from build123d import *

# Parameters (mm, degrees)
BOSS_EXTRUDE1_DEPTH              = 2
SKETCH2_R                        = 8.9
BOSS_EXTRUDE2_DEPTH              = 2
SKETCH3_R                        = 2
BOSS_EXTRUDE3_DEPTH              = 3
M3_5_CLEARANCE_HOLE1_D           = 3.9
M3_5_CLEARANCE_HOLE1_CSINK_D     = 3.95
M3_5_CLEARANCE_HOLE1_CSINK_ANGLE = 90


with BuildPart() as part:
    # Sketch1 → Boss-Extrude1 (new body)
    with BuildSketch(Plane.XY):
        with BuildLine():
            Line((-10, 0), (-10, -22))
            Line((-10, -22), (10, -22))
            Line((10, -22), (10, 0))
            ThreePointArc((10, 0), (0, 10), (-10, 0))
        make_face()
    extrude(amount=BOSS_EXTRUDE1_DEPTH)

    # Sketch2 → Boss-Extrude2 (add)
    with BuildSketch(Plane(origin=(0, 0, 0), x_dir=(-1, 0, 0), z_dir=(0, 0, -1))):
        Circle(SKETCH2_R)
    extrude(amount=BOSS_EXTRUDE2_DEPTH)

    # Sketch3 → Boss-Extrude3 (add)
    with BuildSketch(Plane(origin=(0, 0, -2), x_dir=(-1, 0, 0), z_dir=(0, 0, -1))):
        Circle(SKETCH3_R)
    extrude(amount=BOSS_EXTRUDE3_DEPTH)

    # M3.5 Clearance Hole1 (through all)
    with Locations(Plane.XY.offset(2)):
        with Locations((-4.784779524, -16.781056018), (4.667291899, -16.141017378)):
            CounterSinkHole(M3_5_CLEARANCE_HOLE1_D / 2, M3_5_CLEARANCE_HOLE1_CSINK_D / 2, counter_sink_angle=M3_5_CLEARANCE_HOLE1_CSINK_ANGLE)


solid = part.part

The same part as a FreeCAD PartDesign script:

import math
import FreeCAD as App
import Part
import Sketcher
from FreeCAD import Vector
Q = App.Units.Quantity

doc = App.newDocument("Part")
body = doc.addObject("PartDesign::Body", "Body")

# Sketch on XY plane
sketch1 = body.newObject("Sketcher::SketchObject", "Sketch")
sketch1.AttachmentSupport = (doc.getObject("XY_Plane"), [""])
sketch1.MapMode = "FlatFace"
sketch1.addGeometry(Part.LineSegment(Vector(-10, 0, 0), Vector(-10, -22, 0)), False)
sketch1.addGeometry(Part.LineSegment(Vector(-10, -22, 0), Vector(10, -22, 0)), False)
sketch1.addGeometry(Part.LineSegment(Vector(10, -22, 0), Vector(10, 0, 0)), False)
sketch1.addGeometry(Part.ArcOfCircle(Part.Circle(Vector(0, 0, 0), Vector(0, 0, 1), 10), math.radians(0), math.radians(180)), False)
sketch1.addConstraint(Sketcher.Constraint("Coincident", 0, 2, 1, 1))
sketch1.addConstraint(Sketcher.Constraint("Coincident", 1, 2, 2, 1))
sketch1.addConstraint(Sketcher.Constraint("Tangent", 2, 2, 3, 1))
sketch1.addConstraint(Sketcher.Constraint("Tangent", 3, 2, 0, 1))
sketch1.addConstraint(Sketcher.Constraint("Vertical", 0))
sketch1.addConstraint(Sketcher.Constraint("Horizontal", 1))
sketch1.addConstraint(Sketcher.Constraint("Vertical", 2))
sketch1.addConstraint(Sketcher.Constraint("Coincident", 3, 3, -1, 1))
sketch1.addConstraint(Sketcher.Constraint("Radius", 3, Q("10 mm")))
sketch1.addConstraint(Sketcher.Constraint("DistanceY", 0, 2, 0, 1, Q("22 mm")))
pad1 = body.newObject("PartDesign::Pad", "Pad")
pad1.Profile = sketch1
pad1.Length = 2

# Sketch on XY plane
sketch2 = body.newObject("Sketcher::SketchObject", "Sketch001")
sketch2.AttachmentSupport = (doc.getObject("XY_Plane"), [""])
sketch2.MapMode = "FlatFace"
sketch2.addGeometry(Part.Circle(Vector(0, 0, 0), Vector(0, 0, 1), 9), False)
sketch2.addConstraint(Sketcher.Constraint("Coincident", 0, 3, -1, 1))
sketch2.addConstraint(Sketcher.Constraint("Diameter", 0, Q("17.8 mm")))
pad2 = body.newObject("PartDesign::Pad", "Pad001")
pad2.Profile = sketch2
pad2.Length = 2
pad2.Reversed = True

# Sketch on XY plane
sketch3 = body.newObject("Sketcher::SketchObject", "Sketch002")
sketch3.AttachmentSupport = (doc.getObject("XY_Plane"), [""])
sketch3.MapMode = "FlatFace"
sketch3.AttachmentOffset = App.Placement(Vector(0, 0, -2), App.Rotation())
sketch3.addGeometry(Part.Circle(Vector(0, 0, 0), Vector(0, 0, 1), 2), False)
sketch3.addConstraint(Sketcher.Constraint("Coincident", 0, 3, -1, 1))
sketch3.addConstraint(Sketcher.Constraint("Diameter", 0, Q("4 mm")))
pad3 = body.newObject("PartDesign::Pad", "Pad002")
pad3.Profile = sketch3
pad3.Length = 3
pad3.Reversed = True

# Sketch on XY plane
sketch4 = body.newObject("Sketcher::SketchObject", "Sketch003")
sketch4.AttachmentSupport = (doc.getObject("XY_Plane"), [""])
sketch4.MapMode = "FlatFace"
sketch4.AttachmentOffset = App.Placement(Vector(0, 0, 2), App.Rotation())
sketch4.addGeometry(Part.Circle(Vector(-4.8, -16.8, 0), Vector(0, 0, 1), 1.9), False)
sketch4.addGeometry(Part.Circle(Vector(4.7, -16.1, 0), Vector(0, 0, 1), 1.9), False)
sketch4.addConstraint(Sketcher.Constraint("Equal", 0, 1))
sketch4.addConstraint(Sketcher.Constraint("Diameter", 0, Q("3.9 mm")))
sketch4.addConstraint(Sketcher.Constraint("DistanceX", 0, 3, -1, 1, Q("4.78478 mm")))
sketch4.addConstraint(Sketcher.Constraint("DistanceX", -1, 1, 1, 3, Q("4.667292 mm")))
sketch4.addConstraint(Sketcher.Constraint("DistanceY", 0, 3, 1, 3, Q("0.640039 mm")))
sketch4.addConstraint(Sketcher.Constraint("DistanceY", 0, 3, -1, 1, Q("16.781056 mm")))
doc.recompute()
hole = body.newObject("PartDesign::Hole", "Hole")
hole.Profile = sketch4
hole.ThreadType = "None"
hole.Diameter = 3.9
hole.DepthType = "ThroughAll"
hole.HoleCutType = "Countersink"
hole.HoleCutDiameter = 3.95
hole.HoleCutCountersinkAngle = 90

doc.recompute()
